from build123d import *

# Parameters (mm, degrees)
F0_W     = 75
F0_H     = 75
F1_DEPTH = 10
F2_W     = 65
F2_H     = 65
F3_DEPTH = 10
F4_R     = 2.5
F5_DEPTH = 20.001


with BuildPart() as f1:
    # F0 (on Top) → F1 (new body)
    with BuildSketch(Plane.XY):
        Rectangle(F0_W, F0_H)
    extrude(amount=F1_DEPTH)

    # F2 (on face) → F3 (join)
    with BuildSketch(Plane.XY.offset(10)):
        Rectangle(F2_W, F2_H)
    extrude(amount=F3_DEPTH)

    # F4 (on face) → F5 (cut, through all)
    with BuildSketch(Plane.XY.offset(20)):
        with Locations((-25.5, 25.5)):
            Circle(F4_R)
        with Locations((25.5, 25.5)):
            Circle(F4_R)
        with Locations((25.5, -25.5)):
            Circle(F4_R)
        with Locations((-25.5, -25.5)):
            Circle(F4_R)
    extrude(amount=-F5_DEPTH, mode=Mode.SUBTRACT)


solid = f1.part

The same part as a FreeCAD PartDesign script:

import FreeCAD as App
import Part
import Sketcher

V = App.Vector
Q = App.Units.Quantity

doc = App.newDocument("Part")
params = doc.addObject("Spreadsheet::Sheet", "Params")
for row, (alias, value) in enumerate([
    ("sketch1_width", "75 mm"),
    ("pad1_length", "10 mm"),
    ("sketch2_width", "65 mm"),
    ("pad2_length", "10 mm"),
    ("sketch3_diameter", "5 mm"),
], start=1):
    params.set(f"A{row}", alias)
    params.set(f"B{row}", "=" + value)
    params.setAlias(f"B{row}", alias)

body = doc.addObject("PartDesign::Body", "Body")

# Sketch on XY plane
sketch1 = doc.addObject("Sketcher::SketchObject", "Sketch")
body.addObject(sketch1)
sketch1.AttachmentSupport = (doc.XY_Plane, [""])
sketch1.MapMode = "FlatFace"
sketch1.addGeometry([
    Part.LineSegment(V(-38, 38, 0), V(-38, -38, 0)),
    Part.LineSegment(V(-38, -38, 0), V(38, -38, 0)),
    Part.LineSegment(V(38, -38, 0), V(38, 38, 0)),
    Part.LineSegment(V(38, 38, 0), V(-38, 38, 0)),
], False)
sketch1.addConstraint([
    Sketcher.Constraint("Coincident", 0, 2, 1, 1),
    Sketcher.Constraint("Coincident", 1, 2, 2, 1),
    Sketcher.Constraint("Coincident", 2, 2, 3, 1),
    Sketcher.Constraint("Coincident", 3, 2, 0, 1),
    Sketcher.Constraint("Vertical", 0),
    Sketcher.Constraint("Horizontal", 1),
    Sketcher.Constraint("Vertical", 2),
    Sketcher.Constraint("Horizontal", 3),
    Sketcher.Constraint("Symmetric", 0, 2, 2, 2, -1, 1),
    Sketcher.Constraint("Equal", 3, 0),
    Sketcher.Constraint("DistanceX", 1, 1, 1, 2, Q("75 mm")),
])
sketch1.setExpression("Constraints[10]", "Params.sketch1_width")
pad1 = doc.addObject("PartDesign::Pad", "Pad")
body.addObject(pad1)
pad1.Profile = sketch1
pad1.setExpression("Length", "Params.pad1_length")

# Sketch on XY plane
sketch2 = doc.addObject("Sketcher::SketchObject", "Sketch001")
body.addObject(sketch2)
sketch2.AttachmentSupport = (doc.XY_Plane, [""])
sketch2.MapMode = "FlatFace"
sketch2.AttachmentOffset = App.Placement(V(0, 0, 10), App.Rotation())
sketch2.addGeometry([
    Part.LineSegment(V(-32, 32, 0), V(-32, -32, 0)),
    Part.LineSegment(V(-32, -32, 0), V(32, -32, 0)),
    Part.LineSegment(V(32, -32, 0), V(32, 32, 0)),
    Part.LineSegment(V(32, 32, 0), V(-32, 32, 0)),
], False)
sketch2.addConstraint([
    Sketcher.Constraint("Coincident", 0, 2, 1, 1),
    Sketcher.Constraint("Coincident", 1, 2, 2, 1),
    Sketcher.Constraint("Coincident", 2, 2, 3, 1),
    Sketcher.Constraint("Coincident", 3, 2, 0, 1),
    Sketcher.Constraint("Vertical", 0),
    Sketcher.Constraint("Horizontal", 1),
    Sketcher.Constraint("Vertical", 2),
    Sketcher.Constraint("Horizontal", 3),
    Sketcher.Constraint("Symmetric", 0, 2, 2, 2, -1, 1),
    Sketcher.Constraint("Equal", 3, 0),
    Sketcher.Constraint("DistanceX", 1, 1, 1, 2, Q("65 mm")),
])
sketch2.setExpression("Constraints[10]", "Params.sketch2_width")
pad2 = doc.addObject("PartDesign::Pad", "Pad001")
body.addObject(pad2)
pad2.Profile = sketch2
pad2.setExpression("Length", "Params.pad2_length")

# Sketch on XY plane
sketch3 = doc.addObject("Sketcher::SketchObject", "Sketch002")
body.addObject(sketch3)
sketch3.AttachmentSupport = (doc.XY_Plane, [""])
sketch3.MapMode = "FlatFace"
sketch3.AttachmentOffset = App.Placement(V(0, 0, 20), App.Rotation())
sketch3.addGeometry([
    Part.Circle(V(-25.5, 25.5, 0), V(0, 0, 1), 2.5),
    Part.Circle(V(25.5, 25.5, 0), V(0, 0, 1), 2.5),
    Part.Circle(V(25.5, -25.5, 0), V(0, 0, 1), 2.5),
    Part.Circle(V(-25.5, -25.5, 0), V(0, 0, 1), 2.5),
], False)
sketch3.addConstraint([
    Sketcher.Constraint("Equal", 0, 1),
    Sketcher.Constraint("Equal", 1, 2),
    Sketcher.Constraint("Equal", 2, 3),
    Sketcher.Constraint("Symmetric", 0, 3, 2, 3, -1, 1),
    Sketcher.Constraint("Symmetric", 1, 3, 3, 3, -1, 1),
    Sketcher.Constraint("Symmetric", 0, 3, 1, 3, -2),
    Sketcher.Constraint("Diameter", 0, Q("5 mm")),
    Sketcher.Constraint("DistanceX", 0, 3, 1, 3, Q("51 mm")),
    Sketcher.Constraint("DistanceY", 2, 3, 1, 3, Q("51 mm")),
])
sketch3.setExpression("Constraints[6]", "Params.sketch3_diameter")
pocket1 = doc.addObject("PartDesign::Pocket", "Pocket")
body.addObject(pocket1)
pocket1.Profile = sketch3
pocket1.Type = "ThroughAll"

doc.recompute()
